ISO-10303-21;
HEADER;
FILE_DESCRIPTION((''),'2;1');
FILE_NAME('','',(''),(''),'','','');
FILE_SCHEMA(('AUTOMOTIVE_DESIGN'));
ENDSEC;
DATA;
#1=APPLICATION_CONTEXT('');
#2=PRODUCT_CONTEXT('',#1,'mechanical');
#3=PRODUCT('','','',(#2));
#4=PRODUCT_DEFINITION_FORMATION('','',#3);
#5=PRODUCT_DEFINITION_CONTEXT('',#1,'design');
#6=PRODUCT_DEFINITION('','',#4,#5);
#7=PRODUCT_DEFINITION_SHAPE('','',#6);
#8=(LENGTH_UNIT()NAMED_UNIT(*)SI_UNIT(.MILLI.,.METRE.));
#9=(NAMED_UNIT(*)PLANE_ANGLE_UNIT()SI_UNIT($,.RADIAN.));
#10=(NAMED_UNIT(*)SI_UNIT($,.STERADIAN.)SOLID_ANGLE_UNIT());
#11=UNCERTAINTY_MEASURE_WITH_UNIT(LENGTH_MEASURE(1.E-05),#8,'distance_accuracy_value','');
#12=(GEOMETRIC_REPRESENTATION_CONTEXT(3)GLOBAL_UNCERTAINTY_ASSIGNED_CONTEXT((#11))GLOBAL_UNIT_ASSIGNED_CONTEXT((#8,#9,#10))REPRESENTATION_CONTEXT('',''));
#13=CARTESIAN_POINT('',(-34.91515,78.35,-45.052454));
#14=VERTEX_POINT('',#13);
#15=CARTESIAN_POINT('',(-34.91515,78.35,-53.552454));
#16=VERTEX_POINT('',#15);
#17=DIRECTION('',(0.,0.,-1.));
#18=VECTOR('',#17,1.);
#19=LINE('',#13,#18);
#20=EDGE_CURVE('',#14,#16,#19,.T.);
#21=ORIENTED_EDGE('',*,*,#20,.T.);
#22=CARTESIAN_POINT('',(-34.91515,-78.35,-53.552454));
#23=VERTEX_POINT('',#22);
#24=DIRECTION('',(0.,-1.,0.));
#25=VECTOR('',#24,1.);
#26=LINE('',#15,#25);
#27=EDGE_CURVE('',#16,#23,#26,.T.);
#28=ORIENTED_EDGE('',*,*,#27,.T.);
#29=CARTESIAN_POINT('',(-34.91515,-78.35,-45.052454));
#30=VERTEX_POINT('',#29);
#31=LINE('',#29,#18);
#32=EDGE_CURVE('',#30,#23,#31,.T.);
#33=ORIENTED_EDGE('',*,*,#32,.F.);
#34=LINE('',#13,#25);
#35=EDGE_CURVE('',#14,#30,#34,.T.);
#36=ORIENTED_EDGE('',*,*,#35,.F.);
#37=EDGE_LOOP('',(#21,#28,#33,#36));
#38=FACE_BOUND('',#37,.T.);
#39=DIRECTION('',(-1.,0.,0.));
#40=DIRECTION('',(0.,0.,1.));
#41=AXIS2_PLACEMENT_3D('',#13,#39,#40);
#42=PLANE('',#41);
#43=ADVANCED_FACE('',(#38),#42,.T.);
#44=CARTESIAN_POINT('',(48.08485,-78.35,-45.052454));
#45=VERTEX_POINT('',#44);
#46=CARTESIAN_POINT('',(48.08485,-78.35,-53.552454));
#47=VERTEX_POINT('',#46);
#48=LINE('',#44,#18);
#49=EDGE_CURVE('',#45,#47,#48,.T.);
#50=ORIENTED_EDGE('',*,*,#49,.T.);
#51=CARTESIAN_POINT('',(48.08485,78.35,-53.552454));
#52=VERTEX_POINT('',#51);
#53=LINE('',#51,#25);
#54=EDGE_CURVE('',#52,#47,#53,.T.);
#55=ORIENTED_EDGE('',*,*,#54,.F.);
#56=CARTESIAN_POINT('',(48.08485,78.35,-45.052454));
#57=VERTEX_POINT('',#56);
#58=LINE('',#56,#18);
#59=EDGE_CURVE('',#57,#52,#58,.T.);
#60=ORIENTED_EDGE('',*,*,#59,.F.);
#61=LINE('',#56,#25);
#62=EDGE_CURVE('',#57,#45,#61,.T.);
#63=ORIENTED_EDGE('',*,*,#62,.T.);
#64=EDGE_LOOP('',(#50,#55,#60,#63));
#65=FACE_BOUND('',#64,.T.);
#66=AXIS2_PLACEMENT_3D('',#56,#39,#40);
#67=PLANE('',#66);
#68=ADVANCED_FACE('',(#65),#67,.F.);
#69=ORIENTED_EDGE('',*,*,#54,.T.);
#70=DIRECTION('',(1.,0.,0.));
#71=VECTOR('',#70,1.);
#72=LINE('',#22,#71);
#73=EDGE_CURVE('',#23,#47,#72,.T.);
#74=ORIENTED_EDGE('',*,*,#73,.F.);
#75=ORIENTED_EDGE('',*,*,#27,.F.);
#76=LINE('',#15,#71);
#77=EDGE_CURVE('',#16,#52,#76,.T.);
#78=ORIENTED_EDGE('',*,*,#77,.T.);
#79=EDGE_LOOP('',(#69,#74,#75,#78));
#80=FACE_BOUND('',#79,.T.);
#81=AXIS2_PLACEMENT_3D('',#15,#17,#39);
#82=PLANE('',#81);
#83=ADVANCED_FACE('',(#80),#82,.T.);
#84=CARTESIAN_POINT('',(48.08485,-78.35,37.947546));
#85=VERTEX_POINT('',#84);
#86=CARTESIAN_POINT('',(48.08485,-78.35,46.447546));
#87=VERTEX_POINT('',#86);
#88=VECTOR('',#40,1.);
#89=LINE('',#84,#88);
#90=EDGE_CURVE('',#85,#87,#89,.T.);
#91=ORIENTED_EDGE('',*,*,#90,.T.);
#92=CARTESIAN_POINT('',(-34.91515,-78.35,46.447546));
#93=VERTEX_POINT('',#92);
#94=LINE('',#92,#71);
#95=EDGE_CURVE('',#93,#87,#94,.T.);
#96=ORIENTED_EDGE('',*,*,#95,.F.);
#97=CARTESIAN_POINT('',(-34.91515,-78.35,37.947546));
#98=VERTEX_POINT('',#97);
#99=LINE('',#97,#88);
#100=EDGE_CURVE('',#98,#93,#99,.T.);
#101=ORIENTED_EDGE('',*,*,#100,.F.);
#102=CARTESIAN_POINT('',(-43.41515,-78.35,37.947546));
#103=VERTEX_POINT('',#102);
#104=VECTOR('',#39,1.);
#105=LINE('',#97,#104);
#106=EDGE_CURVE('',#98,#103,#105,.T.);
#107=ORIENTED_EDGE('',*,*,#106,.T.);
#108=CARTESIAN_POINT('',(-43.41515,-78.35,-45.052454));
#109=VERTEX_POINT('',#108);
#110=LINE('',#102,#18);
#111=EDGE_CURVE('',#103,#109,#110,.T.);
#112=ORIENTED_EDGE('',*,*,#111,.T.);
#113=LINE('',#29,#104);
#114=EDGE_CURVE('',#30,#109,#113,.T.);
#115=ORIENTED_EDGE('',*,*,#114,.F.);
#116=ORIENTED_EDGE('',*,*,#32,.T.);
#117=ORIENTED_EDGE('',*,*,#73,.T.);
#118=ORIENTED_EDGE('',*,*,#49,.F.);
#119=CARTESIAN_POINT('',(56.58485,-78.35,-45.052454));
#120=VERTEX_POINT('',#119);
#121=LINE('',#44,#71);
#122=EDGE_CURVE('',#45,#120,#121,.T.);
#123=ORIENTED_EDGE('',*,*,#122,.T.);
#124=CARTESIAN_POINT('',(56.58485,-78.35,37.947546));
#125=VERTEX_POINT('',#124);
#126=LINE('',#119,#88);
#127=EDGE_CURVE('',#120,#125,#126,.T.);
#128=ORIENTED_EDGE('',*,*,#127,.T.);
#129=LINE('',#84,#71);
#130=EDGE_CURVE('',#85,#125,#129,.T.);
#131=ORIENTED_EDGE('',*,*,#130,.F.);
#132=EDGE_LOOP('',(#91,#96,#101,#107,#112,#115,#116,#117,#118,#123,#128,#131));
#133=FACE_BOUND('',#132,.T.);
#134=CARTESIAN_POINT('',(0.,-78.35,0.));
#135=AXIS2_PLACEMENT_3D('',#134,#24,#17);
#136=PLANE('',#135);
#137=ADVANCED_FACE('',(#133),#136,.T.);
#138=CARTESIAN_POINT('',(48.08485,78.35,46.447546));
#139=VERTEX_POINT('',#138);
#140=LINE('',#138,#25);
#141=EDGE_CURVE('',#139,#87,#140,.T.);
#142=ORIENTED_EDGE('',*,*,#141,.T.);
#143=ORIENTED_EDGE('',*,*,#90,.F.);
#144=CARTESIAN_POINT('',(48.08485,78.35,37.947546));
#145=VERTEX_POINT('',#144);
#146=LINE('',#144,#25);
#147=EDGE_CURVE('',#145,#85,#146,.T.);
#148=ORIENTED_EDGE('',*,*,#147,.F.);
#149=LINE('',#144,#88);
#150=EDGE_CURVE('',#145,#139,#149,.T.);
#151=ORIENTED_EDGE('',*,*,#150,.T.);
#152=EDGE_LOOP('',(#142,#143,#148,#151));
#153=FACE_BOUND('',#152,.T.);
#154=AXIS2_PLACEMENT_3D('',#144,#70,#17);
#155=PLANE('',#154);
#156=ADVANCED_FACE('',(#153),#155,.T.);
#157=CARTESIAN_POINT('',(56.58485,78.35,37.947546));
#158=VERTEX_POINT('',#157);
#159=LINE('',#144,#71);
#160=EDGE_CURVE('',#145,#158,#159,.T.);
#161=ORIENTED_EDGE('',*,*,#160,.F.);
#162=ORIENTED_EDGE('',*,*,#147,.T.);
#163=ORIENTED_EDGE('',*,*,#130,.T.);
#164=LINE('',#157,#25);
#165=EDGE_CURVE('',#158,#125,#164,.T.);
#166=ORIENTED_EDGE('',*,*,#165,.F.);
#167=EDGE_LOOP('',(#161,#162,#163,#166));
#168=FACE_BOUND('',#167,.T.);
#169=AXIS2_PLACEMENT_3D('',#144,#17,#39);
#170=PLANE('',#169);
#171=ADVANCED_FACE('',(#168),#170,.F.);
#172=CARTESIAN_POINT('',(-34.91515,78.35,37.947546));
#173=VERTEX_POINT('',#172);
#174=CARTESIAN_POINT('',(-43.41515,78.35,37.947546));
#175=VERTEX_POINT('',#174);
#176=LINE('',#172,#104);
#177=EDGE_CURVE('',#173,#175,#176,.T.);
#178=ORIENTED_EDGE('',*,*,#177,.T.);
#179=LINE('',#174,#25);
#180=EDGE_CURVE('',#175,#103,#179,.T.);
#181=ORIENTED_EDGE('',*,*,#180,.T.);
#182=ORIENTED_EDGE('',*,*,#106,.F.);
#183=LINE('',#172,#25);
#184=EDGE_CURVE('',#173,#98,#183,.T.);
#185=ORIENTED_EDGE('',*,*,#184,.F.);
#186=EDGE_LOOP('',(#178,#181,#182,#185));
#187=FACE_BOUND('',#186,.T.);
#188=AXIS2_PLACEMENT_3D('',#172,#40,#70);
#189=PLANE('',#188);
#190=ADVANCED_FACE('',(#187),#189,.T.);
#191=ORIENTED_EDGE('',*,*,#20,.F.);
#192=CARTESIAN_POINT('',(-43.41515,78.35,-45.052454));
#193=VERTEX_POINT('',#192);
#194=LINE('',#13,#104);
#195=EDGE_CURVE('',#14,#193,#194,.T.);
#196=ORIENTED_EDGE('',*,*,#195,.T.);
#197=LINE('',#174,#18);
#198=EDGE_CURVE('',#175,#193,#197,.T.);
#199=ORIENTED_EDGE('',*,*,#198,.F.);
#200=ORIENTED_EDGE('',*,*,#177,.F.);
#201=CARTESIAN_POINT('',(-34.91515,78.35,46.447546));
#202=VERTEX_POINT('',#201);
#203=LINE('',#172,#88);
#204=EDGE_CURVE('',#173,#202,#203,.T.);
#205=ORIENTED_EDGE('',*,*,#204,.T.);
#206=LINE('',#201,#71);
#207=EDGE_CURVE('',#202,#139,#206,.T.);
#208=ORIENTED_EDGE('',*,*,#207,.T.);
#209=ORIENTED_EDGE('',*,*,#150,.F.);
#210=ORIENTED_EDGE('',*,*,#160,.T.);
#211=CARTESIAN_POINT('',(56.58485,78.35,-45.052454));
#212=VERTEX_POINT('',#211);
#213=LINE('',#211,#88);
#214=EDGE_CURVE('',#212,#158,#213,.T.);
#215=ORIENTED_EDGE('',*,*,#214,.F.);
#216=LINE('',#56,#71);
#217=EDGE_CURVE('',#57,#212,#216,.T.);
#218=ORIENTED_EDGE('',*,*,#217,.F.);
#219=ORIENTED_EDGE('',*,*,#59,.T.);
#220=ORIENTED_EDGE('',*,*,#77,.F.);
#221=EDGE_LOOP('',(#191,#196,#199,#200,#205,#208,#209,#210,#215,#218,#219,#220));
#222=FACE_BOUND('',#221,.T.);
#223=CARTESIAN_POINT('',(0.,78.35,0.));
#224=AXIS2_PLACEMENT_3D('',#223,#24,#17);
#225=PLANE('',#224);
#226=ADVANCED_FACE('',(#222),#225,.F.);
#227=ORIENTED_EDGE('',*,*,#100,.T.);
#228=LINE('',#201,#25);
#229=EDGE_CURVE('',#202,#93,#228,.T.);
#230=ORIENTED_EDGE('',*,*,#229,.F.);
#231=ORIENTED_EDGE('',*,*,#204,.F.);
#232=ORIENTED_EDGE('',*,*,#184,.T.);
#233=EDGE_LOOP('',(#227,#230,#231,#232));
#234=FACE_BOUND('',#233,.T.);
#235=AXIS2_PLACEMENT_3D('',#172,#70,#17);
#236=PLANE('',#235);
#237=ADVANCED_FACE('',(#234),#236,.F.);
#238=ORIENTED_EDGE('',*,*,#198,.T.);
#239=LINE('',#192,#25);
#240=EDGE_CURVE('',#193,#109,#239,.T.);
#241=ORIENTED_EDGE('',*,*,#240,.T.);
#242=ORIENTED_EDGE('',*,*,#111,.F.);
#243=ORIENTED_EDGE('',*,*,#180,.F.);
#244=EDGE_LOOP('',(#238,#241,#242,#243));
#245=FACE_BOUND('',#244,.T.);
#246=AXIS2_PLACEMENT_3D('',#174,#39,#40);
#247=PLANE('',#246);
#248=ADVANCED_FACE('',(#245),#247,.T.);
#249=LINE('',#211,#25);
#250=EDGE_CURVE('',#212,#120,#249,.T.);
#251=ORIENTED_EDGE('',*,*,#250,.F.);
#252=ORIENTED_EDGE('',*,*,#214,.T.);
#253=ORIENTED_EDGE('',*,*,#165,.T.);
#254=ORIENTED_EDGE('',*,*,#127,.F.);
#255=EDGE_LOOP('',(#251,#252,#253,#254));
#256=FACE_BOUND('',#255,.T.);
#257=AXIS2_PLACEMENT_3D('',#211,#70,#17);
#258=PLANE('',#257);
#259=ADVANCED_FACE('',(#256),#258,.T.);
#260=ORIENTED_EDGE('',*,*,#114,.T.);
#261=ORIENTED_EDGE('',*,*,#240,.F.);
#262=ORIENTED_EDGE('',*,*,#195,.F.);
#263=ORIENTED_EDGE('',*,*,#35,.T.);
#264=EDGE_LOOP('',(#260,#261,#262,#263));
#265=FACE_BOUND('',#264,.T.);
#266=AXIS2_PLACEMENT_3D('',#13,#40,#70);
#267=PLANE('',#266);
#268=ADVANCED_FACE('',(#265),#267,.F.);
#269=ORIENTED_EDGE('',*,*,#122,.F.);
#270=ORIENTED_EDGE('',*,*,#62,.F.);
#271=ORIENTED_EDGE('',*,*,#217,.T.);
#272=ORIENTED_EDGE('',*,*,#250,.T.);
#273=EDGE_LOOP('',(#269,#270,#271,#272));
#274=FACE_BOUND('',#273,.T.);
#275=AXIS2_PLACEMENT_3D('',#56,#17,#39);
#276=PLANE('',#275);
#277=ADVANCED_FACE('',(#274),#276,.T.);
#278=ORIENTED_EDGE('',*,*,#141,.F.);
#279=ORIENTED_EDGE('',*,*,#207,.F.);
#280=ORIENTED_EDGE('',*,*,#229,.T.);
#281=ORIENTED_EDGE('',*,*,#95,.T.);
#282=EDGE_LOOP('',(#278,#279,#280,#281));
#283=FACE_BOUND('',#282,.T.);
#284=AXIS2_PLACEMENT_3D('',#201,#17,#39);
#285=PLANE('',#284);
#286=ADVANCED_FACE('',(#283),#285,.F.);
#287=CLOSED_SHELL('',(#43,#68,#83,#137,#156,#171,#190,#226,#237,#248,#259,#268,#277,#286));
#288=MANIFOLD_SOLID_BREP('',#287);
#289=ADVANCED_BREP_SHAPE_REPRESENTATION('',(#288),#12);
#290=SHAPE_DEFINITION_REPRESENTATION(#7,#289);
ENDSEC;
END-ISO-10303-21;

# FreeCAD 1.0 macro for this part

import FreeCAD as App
import Part
import Sketcher
from FreeCAD import Vector
Q = App.Units.Quantity

doc = App.newDocument("Part")
params = doc.addObject("Spreadsheet::Sheet", "Params")
for row, (alias, value) in enumerate([
    ("sketch1_width", "83 mm"),
    ("sketch1_width2", "8.5 mm"),
    ("pad1_length", "156.7 mm"),
], start=1):
    params.set(f"A{row}", alias)
    params.set(f"B{row}", "=" + value)
    params.setAlias(f"B{row}", alias)

body = doc.addObject("PartDesign::Body", "Body")

# Sketch on XZ plane
sketch1 = body.newObject("Sketcher::SketchObject", "Sketch")
sketch1.AttachmentSupport = (doc.getObject("XZ_Plane"), [""])
sketch1.MapMode = "FlatFace"
sketch1.addGeometry([
    Part.LineSegment(Vector(-35, -54, 0), Vector(-35, -45, 0)),  # 0
    Part.LineSegment(Vector(-35, -45, 0), Vector(-43, -45, 0)),  # 1
    Part.LineSegment(Vector(-43, -45, 0), Vector(-43, 38, 0)),  # 2
    Part.LineSegment(Vector(-43, 38, 0), Vector(-35, 38, 0)),  # 3
    Part.LineSegment(Vector(-35, 38, 0), Vector(-35, 46, 0)),  # 4
    Part.LineSegment(Vector(-35, 46, 0), Vector(48, 46, 0)),  # 5
    Part.LineSegment(Vector(48, 46, 0), Vector(48, 38, 0)),  # 6
    Part.LineSegment(Vector(48, 38, 0), Vector(57, 38, 0)),  # 7
    Part.LineSegment(Vector(57, 38, 0), Vector(57, -45, 0)),  # 8
    Part.LineSegment(Vector(57, -45, 0), Vector(48, -45, 0)),  # 9
    Part.LineSegment(Vector(48, -45, 0), Vector(48, -54, 0)),  # 10
    Part.LineSegment(Vector(48, -54, 0), Vector(-35, -54, 0)),  # 11
], False)
sketch1.addConstraint([
    Sketcher.Constraint("Coincident", 0, 2, 1, 1),
    Sketcher.Constraint("Coincident", 1, 2, 2, 1),
    Sketcher.Constraint("Coincident", 2, 2, 3, 1),
    Sketcher.Constraint("Coincident", 3, 2, 4, 1),
    Sketcher.Constraint("Coincident", 4, 2, 5, 1),
    Sketcher.Constraint("Coincident", 5, 2, 6, 1),
    Sketcher.Constraint("Coincident", 6, 2, 7, 1),
    Sketcher.Constraint("Coincident", 7, 2, 8, 1),
    Sketcher.Constraint("Coincident", 8, 2, 9, 1),
    Sketcher.Constraint("Coincident", 9, 2, 10, 1),
    Sketcher.Constraint("Coincident", 10, 2, 11, 1),
    Sketcher.Constraint("Coincident", 11, 2, 0, 1),
    Sketcher.Constraint("Vertical", 0),
    Sketcher.Constraint("Horizontal", 1),
    Sketcher.Constraint("Vertical", 2),
    Sketcher.Constraint("Horizontal", 3),
    Sketcher.Constraint("Vertical", 4),
    Sketcher.Constraint("Horizontal", 5),
    Sketcher.Constraint("Vertical", 6),
    Sketcher.Constraint("Horizontal", 7),
    Sketcher.Constraint("Vertical", 8),
    Sketcher.Constraint("Horizontal", 9),
    Sketcher.Constraint("Vertical", 10),
    Sketcher.Constraint("Horizontal", 11),
    Sketcher.Constraint("Horizontal", 3, 2, 6, 2),
    Sketcher.Constraint("Horizontal", 1, 2, 8, 2),
    Sketcher.Constraint("Vertical", 0, 2, 3, 2),
    Sketcher.Constraint("Vertical", 6, 2, 9, 2),
    Sketcher.Constraint("Equal", 3, 7),
    Sketcher.Constraint("Equal", 9, 0),
    Sketcher.Constraint("Equal", 11, 2),
    Sketcher.Constraint("Equal", 0, 4),
    Sketcher.Constraint("DistanceX", 5, 1, 5, 2, Q("83 mm")),
    Sketcher.Constraint("DistanceX", 1, 2, 1, 1, Q("8.5 mm")),
    Sketcher.Constraint("DistanceX", 0, 2, -1, 1, Q("34.91515 mm")),
    Sketcher.Constraint("DistanceY", 0, 2, -1, 1, Q("45.052454 mm")),
])
sketch1.setExpression("Constraints[32]", "Params.sketch1_width")
sketch1.setExpression("Constraints[33]", "Params.sketch1_width2")
pad1 = body.newObject("PartDesign::Pad", "Pad")
pad1.Profile = sketch1
pad1.setExpression("Length", "Params.pad1_length")
pad1.Midplane = True

doc.recompute()
